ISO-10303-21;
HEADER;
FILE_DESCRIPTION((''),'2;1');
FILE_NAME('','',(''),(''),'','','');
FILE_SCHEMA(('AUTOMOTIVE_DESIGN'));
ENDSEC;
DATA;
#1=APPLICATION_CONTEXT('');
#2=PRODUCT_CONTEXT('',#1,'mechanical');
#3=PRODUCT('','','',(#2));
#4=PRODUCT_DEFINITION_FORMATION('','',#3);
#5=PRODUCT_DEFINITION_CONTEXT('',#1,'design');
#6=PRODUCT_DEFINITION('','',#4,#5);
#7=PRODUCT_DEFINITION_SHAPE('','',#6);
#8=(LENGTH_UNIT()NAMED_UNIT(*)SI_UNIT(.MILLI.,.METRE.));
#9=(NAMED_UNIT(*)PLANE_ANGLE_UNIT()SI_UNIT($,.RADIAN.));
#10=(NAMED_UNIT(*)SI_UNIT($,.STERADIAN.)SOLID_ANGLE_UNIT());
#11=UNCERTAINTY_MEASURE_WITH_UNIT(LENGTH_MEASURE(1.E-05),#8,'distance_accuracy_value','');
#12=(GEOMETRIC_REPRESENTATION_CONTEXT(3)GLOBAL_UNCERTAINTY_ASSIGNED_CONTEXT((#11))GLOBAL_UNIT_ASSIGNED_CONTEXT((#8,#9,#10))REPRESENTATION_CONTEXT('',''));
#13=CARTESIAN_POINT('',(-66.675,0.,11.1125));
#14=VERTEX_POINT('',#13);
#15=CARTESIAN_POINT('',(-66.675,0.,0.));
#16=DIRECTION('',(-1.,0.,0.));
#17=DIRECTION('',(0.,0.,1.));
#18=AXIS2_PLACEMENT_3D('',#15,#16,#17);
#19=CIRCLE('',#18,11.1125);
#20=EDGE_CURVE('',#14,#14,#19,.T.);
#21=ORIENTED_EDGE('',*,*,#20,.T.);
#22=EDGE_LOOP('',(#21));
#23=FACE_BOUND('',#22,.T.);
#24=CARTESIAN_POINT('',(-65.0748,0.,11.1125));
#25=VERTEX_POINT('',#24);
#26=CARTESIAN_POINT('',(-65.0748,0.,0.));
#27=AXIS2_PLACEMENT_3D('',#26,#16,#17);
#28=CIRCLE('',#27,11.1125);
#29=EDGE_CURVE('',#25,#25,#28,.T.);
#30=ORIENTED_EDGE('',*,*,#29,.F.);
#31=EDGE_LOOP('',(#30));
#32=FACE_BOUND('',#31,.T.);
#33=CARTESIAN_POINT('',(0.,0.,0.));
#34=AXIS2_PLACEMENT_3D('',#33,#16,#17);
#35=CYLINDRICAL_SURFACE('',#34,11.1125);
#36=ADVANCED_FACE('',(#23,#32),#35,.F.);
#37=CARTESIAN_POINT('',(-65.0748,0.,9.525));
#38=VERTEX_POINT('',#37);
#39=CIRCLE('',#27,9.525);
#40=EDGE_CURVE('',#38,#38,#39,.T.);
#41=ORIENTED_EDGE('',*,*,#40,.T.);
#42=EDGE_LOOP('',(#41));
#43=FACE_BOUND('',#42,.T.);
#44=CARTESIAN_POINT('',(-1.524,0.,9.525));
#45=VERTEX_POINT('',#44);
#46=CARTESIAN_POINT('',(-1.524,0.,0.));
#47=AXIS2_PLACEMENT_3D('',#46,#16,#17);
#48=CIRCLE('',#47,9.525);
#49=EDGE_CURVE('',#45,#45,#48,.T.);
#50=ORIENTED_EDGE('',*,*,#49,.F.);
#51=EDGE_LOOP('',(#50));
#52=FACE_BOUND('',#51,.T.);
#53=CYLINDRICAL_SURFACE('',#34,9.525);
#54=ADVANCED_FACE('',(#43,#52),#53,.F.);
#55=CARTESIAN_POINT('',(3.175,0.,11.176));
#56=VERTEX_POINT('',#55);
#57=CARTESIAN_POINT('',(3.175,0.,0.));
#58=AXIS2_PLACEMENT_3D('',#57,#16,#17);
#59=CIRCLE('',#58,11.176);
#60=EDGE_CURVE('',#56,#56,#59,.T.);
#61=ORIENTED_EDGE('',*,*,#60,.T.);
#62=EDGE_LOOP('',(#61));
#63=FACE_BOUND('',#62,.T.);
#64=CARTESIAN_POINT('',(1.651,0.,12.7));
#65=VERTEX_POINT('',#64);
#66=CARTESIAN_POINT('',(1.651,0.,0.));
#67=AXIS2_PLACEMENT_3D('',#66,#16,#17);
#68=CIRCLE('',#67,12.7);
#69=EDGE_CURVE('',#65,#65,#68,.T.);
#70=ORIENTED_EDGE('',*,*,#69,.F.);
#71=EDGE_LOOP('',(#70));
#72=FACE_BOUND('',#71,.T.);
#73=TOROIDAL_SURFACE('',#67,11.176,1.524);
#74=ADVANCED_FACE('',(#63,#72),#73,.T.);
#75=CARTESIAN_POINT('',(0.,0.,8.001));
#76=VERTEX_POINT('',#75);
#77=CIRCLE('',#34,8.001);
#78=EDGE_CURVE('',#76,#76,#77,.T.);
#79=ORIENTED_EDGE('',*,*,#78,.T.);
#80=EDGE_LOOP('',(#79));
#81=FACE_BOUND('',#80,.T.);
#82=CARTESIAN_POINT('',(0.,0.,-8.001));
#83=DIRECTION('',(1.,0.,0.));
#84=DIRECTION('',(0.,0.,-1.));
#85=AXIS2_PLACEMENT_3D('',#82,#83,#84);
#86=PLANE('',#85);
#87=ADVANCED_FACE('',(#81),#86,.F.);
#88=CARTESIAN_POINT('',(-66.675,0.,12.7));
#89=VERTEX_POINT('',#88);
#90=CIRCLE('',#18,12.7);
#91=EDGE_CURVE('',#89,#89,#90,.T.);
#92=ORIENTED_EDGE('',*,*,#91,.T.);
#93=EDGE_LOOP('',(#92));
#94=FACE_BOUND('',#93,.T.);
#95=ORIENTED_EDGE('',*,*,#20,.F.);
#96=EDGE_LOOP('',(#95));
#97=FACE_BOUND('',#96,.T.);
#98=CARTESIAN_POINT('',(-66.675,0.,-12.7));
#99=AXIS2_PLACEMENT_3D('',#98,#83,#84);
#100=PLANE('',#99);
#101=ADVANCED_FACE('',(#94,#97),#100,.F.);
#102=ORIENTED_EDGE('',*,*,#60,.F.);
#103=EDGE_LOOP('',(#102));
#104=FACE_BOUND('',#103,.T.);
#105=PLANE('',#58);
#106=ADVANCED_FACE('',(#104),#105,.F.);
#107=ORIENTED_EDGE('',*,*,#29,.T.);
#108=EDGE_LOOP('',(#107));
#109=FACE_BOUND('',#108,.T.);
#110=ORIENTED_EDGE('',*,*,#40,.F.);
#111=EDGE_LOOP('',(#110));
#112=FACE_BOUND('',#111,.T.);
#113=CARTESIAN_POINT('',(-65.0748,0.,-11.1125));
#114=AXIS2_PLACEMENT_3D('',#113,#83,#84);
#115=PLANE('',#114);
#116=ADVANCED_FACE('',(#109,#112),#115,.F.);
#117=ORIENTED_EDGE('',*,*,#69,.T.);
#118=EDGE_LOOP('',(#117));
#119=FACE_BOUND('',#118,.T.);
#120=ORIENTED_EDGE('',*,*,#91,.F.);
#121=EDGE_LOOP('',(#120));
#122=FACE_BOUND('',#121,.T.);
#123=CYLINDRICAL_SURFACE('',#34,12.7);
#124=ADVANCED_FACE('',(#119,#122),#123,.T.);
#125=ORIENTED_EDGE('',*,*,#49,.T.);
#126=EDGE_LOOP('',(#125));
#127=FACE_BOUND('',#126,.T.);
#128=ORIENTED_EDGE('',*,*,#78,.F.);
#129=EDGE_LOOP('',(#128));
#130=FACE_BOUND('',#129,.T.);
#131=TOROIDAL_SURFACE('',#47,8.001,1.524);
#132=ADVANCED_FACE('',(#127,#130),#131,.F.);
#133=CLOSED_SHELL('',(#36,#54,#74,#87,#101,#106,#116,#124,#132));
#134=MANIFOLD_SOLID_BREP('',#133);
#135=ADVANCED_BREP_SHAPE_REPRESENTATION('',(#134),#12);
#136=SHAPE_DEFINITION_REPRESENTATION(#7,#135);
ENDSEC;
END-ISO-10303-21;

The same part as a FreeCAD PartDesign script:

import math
import FreeCAD as App
import Part
import Sketcher
Q = App.Units.Quantity

doc = App.newDocument("Part")
params = doc.addObject("Spreadsheet::Sheet", "Params")
for row, (alias, value) in enumerate([
    ("sketch1_radius", "0.06 in"),
    ("sketch1_width", "2.69 in"),
    ("sketch1_height", "0.44 in"),
    ("sketch1_width2", "0.125 in"),
    ("sketch1_width3", "0.063 in"),
    ("revolution_angle", "360 deg"),
], start=1):
    params.set(f"A{row}", alias)
    params.set(f"B{row}", "=" + value)
    params.setAlias(f"B{row}", alias)

body = doc.addObject("PartDesign::Body", "Body")

# Sketch on XZ plane
sketch1 = body.newObject("Sketcher::SketchObject", "Sketch")
sketch1.AttachmentSupport = (doc.getObject("XZ_Plane"), [""])
sketch1.MapMode = "FlatFace"
sketch1.addGeometry([
    Part.LineSegment(App.Vector(0, 0, 0), App.Vector(3.2, 0, 0)),  # 0
    Part.LineSegment(App.Vector(3.2, 0, 0), App.Vector(3.2, -11.2, 0)),  # 1
    Part.ArcOfCircle(Part.Circle(App.Vector(1.7, -11.2, 0), App.Vector(0, 0, 1), 1.5), math.radians(-90), math.radians(0)),  # 2
    Part.LineSegment(App.Vector(1.7, -12.7, 0), App.Vector(-66.7, -12.7, 0)),  # 3
    Part.LineSegment(App.Vector(-66.7, -12.7, 0), App.Vector(-66.7, -11.1, 0)),  # 4
    Part.LineSegment(App.Vector(-66.7, -11.1, 0), App.Vector(-65.1, -11.1, 0)),  # 5
    Part.LineSegment(App.Vector(-65.1, -11.1, 0), App.Vector(-65.1, -9.5, 0)),  # 6
    Part.LineSegment(App.Vector(-65.1, -9.5, 0), App.Vector(-1.5, -9.5, 0)),  # 7
    Part.ArcOfCircle(Part.Circle(App.Vector(-1.5, -8, 0), App.Vector(0, 0, 1), 1.5), math.radians(-90), math.radians(0)),  # 8
    Part.LineSegment(App.Vector(0, -8, 0), App.Vector(0, 0, 0)),  # 9
], False)
sketch1.addConstraint([
    Sketcher.Constraint("Coincident", 0, 2, 1, 1),
    Sketcher.Constraint("Tangent", 1, 2, 2, 2),
    Sketcher.Constraint("Tangent", 2, 1, 3, 1),
    Sketcher.Constraint("Coincident", 3, 2, 4, 1),
    Sketcher.Constraint("Coincident", 4, 2, 5, 1),
    Sketcher.Constraint("Coincident", 5, 2, 6, 1),
    Sketcher.Constraint("Coincident", 6, 2, 7, 1),
    Sketcher.Constraint("Tangent", 7, 2, 8, 1),
    Sketcher.Constraint("Tangent", 8, 2, 9, 1),
    Sketcher.Constraint("Coincident", 9, 2, 0, 1),
    Sketcher.Constraint("Horizontal", 0),
    Sketcher.Constraint("Vertical", 1),
    Sketcher.Constraint("Horizontal", 3),
    Sketcher.Constraint("Vertical", 4),
    Sketcher.Constraint("Horizontal", 5),
    Sketcher.Constraint("Vertical", 6),
    Sketcher.Constraint("Horizontal", 7),
    Sketcher.Constraint("Vertical", 9),
    Sketcher.Constraint("Coincident", 9, 2, -1, 1),
    Sketcher.Constraint("Equal", 2, 8),
    Sketcher.Constraint("Equal", 4, 6),
    Sketcher.Constraint("Radius", 2, Q("0.06 in")),
    Sketcher.Constraint("DistanceX", 3, 2, 3, 1, Q("2.69 in")),
    Sketcher.Constraint("DistanceY", 1, 2, 1, 1, Q("0.44 in")),
    Sketcher.Constraint("DistanceX", 0, 1, 0, 2, Q("0.125 in")),
    Sketcher.Constraint("DistanceX", 5, 1, 5, 2, Q("0.063 in")),
    Sketcher.Constraint("DistanceY", 4, 1, 4, 2, Q("0.0625 in")),
])
sketch1.setExpression("Constraints[21]", "Params.sketch1_radius")
sketch1.setExpression("Constraints[22]", "Params.sketch1_width")
sketch1.setExpression("Constraints[23]", "Params.sketch1_height")
sketch1.setExpression("Constraints[24]", "Params.sketch1_width2")
sketch1.setExpression("Constraints[25]", "Params.sketch1_width3")
revolution = body.newObject("PartDesign::Revolution", "Revolution")
revolution.Profile = sketch1
revolution.ReferenceAxis = (sketch1, ["H_Axis"])
revolution.setExpression("Angle", "Params.revolution_angle")

doc.recompute()
